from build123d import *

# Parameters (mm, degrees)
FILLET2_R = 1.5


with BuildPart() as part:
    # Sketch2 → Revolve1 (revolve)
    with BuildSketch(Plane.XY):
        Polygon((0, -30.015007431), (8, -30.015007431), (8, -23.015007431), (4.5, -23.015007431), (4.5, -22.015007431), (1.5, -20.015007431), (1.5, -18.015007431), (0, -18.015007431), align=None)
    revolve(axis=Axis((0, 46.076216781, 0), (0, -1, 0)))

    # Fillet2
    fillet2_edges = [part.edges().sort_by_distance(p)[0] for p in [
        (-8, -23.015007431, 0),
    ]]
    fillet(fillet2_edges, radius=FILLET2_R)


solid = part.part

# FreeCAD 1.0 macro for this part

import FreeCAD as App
import Part
import Sketcher


def edges_at(feature, points):
    """Names of the edges that pass closest to the given points."""
    edges = feature.Shape.Edges
    near = lambda p: min(range(len(edges)), key=lambda i: edges[i].distToShape(Part.Vertex(*p))[0])
    return sorted({f"Edge{near(p) + 1}" for p in points})

doc = App.newDocument("Part")
body = doc.addObject("PartDesign::Body", "Body")

# Sketch on XY plane
sketch1 = body.newObject("Sketcher::SketchObject", "Sketch")
sketch1.AttachmentSupport = (doc.getObject("XY_Plane"), [""])
sketch1.MapMode = "FlatFace"
sketch1.addGeometry(Part.LineSegment(App.Vector(0, -30, 0), App.Vector(8, -30, 0)), False)
sketch1.addGeometry(Part.LineSegment(App.Vector(8, -30, 0), App.Vector(8, -23, 0)), False)
sketch1.addGeometry(Part.LineSegment(App.Vector(8, -23, 0), App.Vector(4.5, -23, 0)), False)
sketch1.addGeometry(Part.LineSegment(App.Vector(4.5, -23, 0), App.Vector(4.5, -22, 0)), False)
sketch1.addGeometry(Part.LineSegment(App.Vector(4.5, -22, 0), App.Vector(1.5, -20, 0)), False)
sketch1.addGeometry(Part.LineSegment(App.Vector(1.5, -20, 0), App.Vector(1.5, -18, 0)), False)
sketch1.addGeometry(Part.LineSegment(App.Vector(1.5, -18, 0), App.Vector(0, -18, 0)), False)
sketch1.addGeometry(Part.LineSegment(App.Vector(0, -18, 0), App.Vector(0, -30, 0)), False)
sketch1.addConstraint(Sketcher.Constraint("Coincident", 0, 2, 1, 1))
sketch1.addConstraint(Sketcher.Constraint("Coincident", 1, 2, 2, 1))
sketch1.addConstraint(Sketcher.Constraint("Coincident", 2, 2, 3, 1))
sketch1.addConstraint(Sketcher.Constraint("Coincident", 3, 2, 4, 1))
sketch1.addConstraint(Sketcher.Constraint("Coincident", 4, 2, 5, 1))
sketch1.addConstraint(Sketcher.Constraint("Coincident", 5, 2, 6, 1))
sketch1.addConstraint(Sketcher.Constraint("Coincident", 6, 2, 7, 1))
sketch1.addConstraint(Sketcher.Constraint("Coincident", 7, 2, 0, 1))
sketch1.addConstraint(Sketcher.Constraint("Horizontal", 0))
sketch1.addConstraint(Sketcher.Constraint("Vertical", 1))
sketch1.addConstraint(Sketcher.Constraint("Horizontal", 2))
sketch1.addConstraint(Sketcher.Constraint("Vertical", 3))
sketch1.addConstraint(Sketcher.Constraint("Vertical", 5))
sketch1.addConstraint(Sketcher.Constraint("Horizontal", 6))
sketch1.addConstraint(Sketcher.Constraint("Vertical", 7))
sketch1.addConstraint(Sketcher.Constraint("PointOnObject", 6, 2, -2))
sketch1.addConstraint(Sketcher.Constraint("DistanceX", 0, 1, 0, 2, 8.0))
sketch1.addConstraint(Sketcher.Constraint("DistanceY", 1, 1, 1, 2, 7.0))
sketch1.addConstraint(Sketcher.Constraint("DistanceY", 3, 1, 3, 2, 1.0))
sketch1.addConstraint(Sketcher.Constraint("DistanceY", 5, 1, 5, 2, 2.0))
sketch1.addConstraint(Sketcher.Constraint("DistanceY", 7, 2, 7, 1, 12.0))
sketch1.addConstraint(Sketcher.Constraint("DistanceX", 2, 2, 2, 1, 3.5))
sketch1.addConstraint(Sketcher.Constraint("DistanceX", 6, 2, 6, 1, 1.5))
sketch1.addConstraint(Sketcher.Constraint("DistanceY", 0, 2, -1, 1, 30.015007))
revolution = body.newObject("PartDesign::Revolution", "Revolution")
revolution.Profile = sketch1
revolution.ReferenceAxis = (sketch1, ["V_Axis"])
revolution.Angle = 360
doc.recompute()

fillet = body.newObject("PartDesign::Fillet", "Fillet")
fillet.Base = (revolution, edges_at(revolution, [(-8, -23.015, 0)]))
fillet.Radius = 1.5

doc.recompute()
